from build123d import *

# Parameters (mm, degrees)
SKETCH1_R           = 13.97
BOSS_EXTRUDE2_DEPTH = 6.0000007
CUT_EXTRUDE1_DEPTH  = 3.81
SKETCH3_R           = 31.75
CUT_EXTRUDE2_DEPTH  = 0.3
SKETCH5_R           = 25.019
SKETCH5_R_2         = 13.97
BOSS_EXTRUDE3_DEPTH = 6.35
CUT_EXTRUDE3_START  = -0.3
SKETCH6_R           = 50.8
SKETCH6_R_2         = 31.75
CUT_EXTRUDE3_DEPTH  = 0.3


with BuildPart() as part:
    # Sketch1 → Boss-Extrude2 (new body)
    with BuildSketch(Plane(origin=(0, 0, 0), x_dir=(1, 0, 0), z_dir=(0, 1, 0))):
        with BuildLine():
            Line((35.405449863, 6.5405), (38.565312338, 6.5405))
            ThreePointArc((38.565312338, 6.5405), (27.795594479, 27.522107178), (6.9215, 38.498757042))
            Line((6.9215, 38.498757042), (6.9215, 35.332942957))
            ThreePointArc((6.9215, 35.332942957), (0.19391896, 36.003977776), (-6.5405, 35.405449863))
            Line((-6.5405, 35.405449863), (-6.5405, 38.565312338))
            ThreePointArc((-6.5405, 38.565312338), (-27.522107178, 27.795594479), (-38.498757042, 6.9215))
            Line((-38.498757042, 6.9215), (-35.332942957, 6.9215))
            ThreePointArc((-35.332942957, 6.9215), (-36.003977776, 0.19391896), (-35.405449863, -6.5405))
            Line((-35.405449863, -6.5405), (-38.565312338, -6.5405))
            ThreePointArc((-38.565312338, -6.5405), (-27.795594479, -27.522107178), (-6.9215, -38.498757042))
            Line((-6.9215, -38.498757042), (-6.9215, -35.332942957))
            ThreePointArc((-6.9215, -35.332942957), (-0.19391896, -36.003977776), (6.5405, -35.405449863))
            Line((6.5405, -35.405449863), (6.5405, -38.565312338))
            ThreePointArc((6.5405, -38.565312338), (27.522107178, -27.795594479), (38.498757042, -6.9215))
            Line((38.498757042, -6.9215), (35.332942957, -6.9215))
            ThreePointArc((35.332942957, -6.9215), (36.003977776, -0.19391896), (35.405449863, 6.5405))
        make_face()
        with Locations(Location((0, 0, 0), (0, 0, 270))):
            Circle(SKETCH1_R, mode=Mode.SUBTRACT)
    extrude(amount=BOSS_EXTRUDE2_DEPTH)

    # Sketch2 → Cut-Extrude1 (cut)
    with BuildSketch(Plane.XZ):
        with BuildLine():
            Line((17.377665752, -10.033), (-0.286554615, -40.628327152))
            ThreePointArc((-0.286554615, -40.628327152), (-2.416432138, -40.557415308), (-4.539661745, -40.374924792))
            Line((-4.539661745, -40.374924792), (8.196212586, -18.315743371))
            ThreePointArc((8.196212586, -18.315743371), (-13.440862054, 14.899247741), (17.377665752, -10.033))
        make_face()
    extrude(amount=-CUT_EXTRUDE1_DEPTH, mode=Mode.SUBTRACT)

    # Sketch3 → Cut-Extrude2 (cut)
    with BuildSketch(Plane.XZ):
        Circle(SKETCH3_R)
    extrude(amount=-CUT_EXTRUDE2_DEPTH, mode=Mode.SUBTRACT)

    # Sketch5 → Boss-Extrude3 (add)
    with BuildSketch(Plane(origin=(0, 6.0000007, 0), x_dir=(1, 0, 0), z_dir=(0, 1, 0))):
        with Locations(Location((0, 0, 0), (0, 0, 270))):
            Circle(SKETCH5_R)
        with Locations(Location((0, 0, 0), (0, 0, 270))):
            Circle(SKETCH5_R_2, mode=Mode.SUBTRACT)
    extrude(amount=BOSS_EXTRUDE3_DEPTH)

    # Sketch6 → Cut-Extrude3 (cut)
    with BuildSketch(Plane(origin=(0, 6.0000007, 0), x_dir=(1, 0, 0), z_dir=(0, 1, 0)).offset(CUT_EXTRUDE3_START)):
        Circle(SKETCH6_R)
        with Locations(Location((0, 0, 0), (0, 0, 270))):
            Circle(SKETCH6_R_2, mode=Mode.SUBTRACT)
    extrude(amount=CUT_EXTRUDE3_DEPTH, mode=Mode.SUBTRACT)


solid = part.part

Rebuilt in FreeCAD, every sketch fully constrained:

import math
import FreeCAD as App
import Part
import Sketcher
from FreeCAD import Vector
Q = App.Units.Quantity

doc = App.newDocument("Part")
body = doc.addObject("PartDesign::Body", "Body")

# Sketch on XZ plane
sketch1 = body.newObject("Sketcher::SketchObject", "Sketch")
sketch1.AttachmentSupport = (doc.getObject("XZ_Plane"), [""])
sketch1.MapMode = "FlatFace"
sketch1.addGeometry([
    Part.LineSegment(Vector(35.40545, -6.5405, 0), Vector(38.565312, -6.5405, 0)),  # 0
    Part.ArcOfCircle(Part.Circle(Vector(0, 0, 0), Vector(0, 0, 1), 39.116), math.radians(-79.807957), math.radians(-9.625514)),  # 1
    Part.LineSegment(Vector(6.9215, -38.498757, 0), Vector(6.9215, -35.332943, 0)),  # 2
    Part.ArcOfCircle(Part.Circle(Vector(0, 0, 0), Vector(0, 0, 1), 36.0045), math.radians(-100.46634), math.radians(-78.916471)),  # 3
    Part.LineSegment(Vector(-6.5405, -35.40545, 0), Vector(-6.5405, -38.565312, 0)),  # 4
    Part.ArcOfCircle(Part.Circle(Vector(0, 0, 0), Vector(0, 0, 1), 39.116), math.radians(-169.807957), math.radians(-99.625514)),  # 5
    Part.LineSegment(Vector(-38.498757, -6.9215, 0), Vector(-35.332943, -6.9215, 0)),  # 6
    Part.ArcOfCircle(Part.Circle(Vector(0, 0, 0), Vector(0, 0, 1), 36.0045), math.radians(169.53366), math.radians(191.083529)),  # 7
    Part.LineSegment(Vector(-35.40545, 6.5405, 0), Vector(-38.565312, 6.5405, 0)),  # 8
    Part.ArcOfCircle(Part.Circle(Vector(0, 0, 0), Vector(0, 0, 1), 39.116), math.radians(100.192043), math.radians(170.374486)),  # 9
    Part.LineSegment(Vector(-6.9215, 38.498757, 0), Vector(-6.9215, 35.332943, 0)),  # 10
    Part.ArcOfCircle(Part.Circle(Vector(0, 0, 0), Vector(0, 0, 1), 36.0045), math.radians(79.53366), math.radians(101.083529)),  # 11
    Part.LineSegment(Vector(6.5405, 35.40545, 0), Vector(6.5405, 38.565312, 0)),  # 12
    Part.ArcOfCircle(Part.Circle(Vector(0, 0, 0), Vector(0, 0, 1), 39.116), math.radians(10.192043), math.radians(80.374486)),  # 13
    Part.LineSegment(Vector(38.498757, 6.9215, 0), Vector(35.332943, 6.9215, 0)),  # 14
    Part.ArcOfCircle(Part.Circle(Vector(0, 0, 0), Vector(0, 0, 1), 36.0045), math.radians(-10.46634), math.radians(11.083529)),  # 15
    Part.Circle(Vector(0, 0, 0), Vector(0, 0, 1), 13.97),  # 16
], False)
sketch1.addConstraint([
    Sketcher.Constraint("Coincident", 0, 2, 1, 2),
    Sketcher.Constraint("Coincident", 1, 1, 2, 1),
    Sketcher.Constraint("Coincident", 2, 2, 3, 2),
    Sketcher.Constraint("Coincident", 3, 1, 4, 1),
    Sketcher.Constraint("Coincident", 4, 2, 5, 2),
    Sketcher.Constraint("Coincident", 5, 1, 6, 1),
    Sketcher.Constraint("Coincident", 6, 2, 7, 2),
    Sketcher.Constraint("Coincident", 7, 1, 8, 1),
    Sketcher.Constraint("Coincident", 8, 2, 9, 2),
    Sketcher.Constraint("Coincident", 9, 1, 10, 1),
    Sketcher.Constraint("Coincident", 10, 2, 11, 2),
    Sketcher.Constraint("Coincident", 11, 1, 12, 1),
    Sketcher.Constraint("Coincident", 12, 2, 13, 2),
    Sketcher.Constraint("Coincident", 13, 1, 14, 1),
    Sketcher.Constraint("Coincident", 14, 2, 15, 2),
    Sketcher.Constraint("Coincident", 15, 1, 0, 1),
    Sketcher.Constraint("Horizontal", 0),
    Sketcher.Constraint("Vertical", 2),
    Sketcher.Constraint("Vertical", 4),
    Sketcher.Constraint("Horizontal", 6),
    Sketcher.Constraint("Horizontal", 8),
    Sketcher.Constraint("Vertical", 10),
    Sketcher.Constraint("Vertical", 12),
    Sketcher.Constraint("Horizontal", 14),
    Sketcher.Constraint("Coincident", 1, 3, -1, 1),
    Sketcher.Constraint("Coincident", 3, 3, -1, 1),
    Sketcher.Constraint("Coincident", 5, 3, -1, 1),
    Sketcher.Constraint("Coincident", 7, 3, -1, 1),
    Sketcher.Constraint("Coincident", 9, 3, -1, 1),
    Sketcher.Constraint("Coincident", 11, 3, -1, 1),
    Sketcher.Constraint("Coincident", 13, 3, -1, 1),
    Sketcher.Constraint("Coincident", 15, 3, -1, 1),
    Sketcher.Constraint("Coincident", 16, 3, -1, 1),
    Sketcher.Constraint("Equal", 1, 5),
    Sketcher.Constraint("Equal", 3, 7),
    Sketcher.Constraint("Equal", 5, 9),
    Sketcher.Constraint("Equal", 7, 11),
    Sketcher.Constraint("Equal", 9, 13),
    Sketcher.Constraint("Equal", 11, 15),
    Sketcher.Constraint("Equal", 0, 8),
    Sketcher.Constraint("Equal", 6, 14),
    Sketcher.Constraint("Equal", 14, 2),
    Sketcher.Constraint("Equal", 8, 4),
    Sketcher.Constraint("Equal", 2, 10),
    Sketcher.Constraint("Equal", 4, 12),
    Sketcher.Constraint("Diameter", 16, Q("1.1 in")),
    Sketcher.Constraint("Radius", 1, Q("1.54 in")),
    Sketcher.Constraint("Radius", 3, Q("1.4175 in")),
    Sketcher.Constraint("DistanceX", 3, 1, 2, 2, Q("0.53 in")),
    Sketcher.Constraint("DistanceY", 0, 2, -1, 1, Q("0.2575 in")),
])
pad1 = body.newObject("PartDesign::Pad", "Pad")
pad1.Profile = sketch1
pad1.Length = 6.000001
pad1.Reversed = True

# Sketch on XZ plane
sketch2 = body.newObject("Sketcher::SketchObject", "Sketch001")
sketch2.AttachmentSupport = (doc.getObject("XZ_Plane"), [""])
sketch2.MapMode = "FlatFace"
sketch2.addGeometry([
    Part.LineSegment(Vector(-0.3, -40.6, 0), Vector(17.4, -10, 0)),
    Part.ArcOfCircle(Part.Circle(Vector(0, 0, 0), Vector(0, 0, 1), 20.1), math.radians(-30), math.radians(294)),
    Part.LineSegment(Vector(8.2, -18.3, 0), Vector(-4.5, -40.4, 0)),
    Part.ArcOfCircle(Part.Circle(Vector(0, 0, 0), Vector(0, 0, 1), 40.6), math.radians(-96.42), math.radians(-90.4)),
], False)
sketch2.addConstraint([
    Sketcher.Constraint("Tangent", 0, 2, 1, 1),
    Sketcher.Constraint("Coincident", 1, 2, 2, 1),
    Sketcher.Constraint("Coincident", 2, 2, 3, 1),
    Sketcher.Constraint("Coincident", 3, 2, 0, 1),
    Sketcher.Constraint("Coincident", 1, 3, -1, 1),
    Sketcher.Constraint("Coincident", 3, 3, -1, 1),
    Sketcher.Constraint("Parallel", 0, 2),
    Sketcher.Constraint("Radius", 1, Q("0.79 in")),
    Sketcher.Constraint("Angle", 0, Q("60 deg")),
    Sketcher.Constraint("Radius", 3, Q("40.629337 mm")),
    Sketcher.Constraint("Distance", 2, Q("25.471749 mm")),
])
pocket1 = body.newObject("PartDesign::Pocket", "Pocket")
pocket1.Profile = sketch2
pocket1.Length = Q("0.15 in")

# Sketch on XZ plane
sketch3 = body.newObject("Sketcher::SketchObject", "Sketch002")
sketch3.AttachmentSupport = (doc.getObject("XZ_Plane"), [""])
sketch3.MapMode = "FlatFace"
sketch3.addGeometry(Part.Circle(Vector(0, 0, 0), Vector(0, 0, 1), 32), False)
sketch3.addConstraint([
    Sketcher.Constraint("Coincident", 0, 3, -1, 1),
    Sketcher.Constraint("Diameter", 0, Q("2.5 in")),
])
pocket2 = body.newObject("PartDesign::Pocket", "Pocket001")
pocket2.Profile = sketch3
pocket2.Length = 0.3

# Sketch on XZ plane
sketch4 = body.newObject("Sketcher::SketchObject", "Sketch003")
sketch4.AttachmentSupport = (doc.getObject("XZ_Plane"), [""])
sketch4.MapMode = "FlatFace"
sketch4.AttachmentOffset = App.Placement(Vector(0, 0, -6.000001), App.Rotation())
sketch4.addGeometry([
    Part.Circle(Vector(0, 0, 0), Vector(0, 0, 1), 25),
    Part.Circle(Vector(0, 0, 0), Vector(0, 0, 1), 14),
], False)
sketch4.addConstraint([
    Sketcher.Constraint("Coincident", 0, 3, -1, 1),
    Sketcher.Constraint("Coincident", 1, 3, -1, 1),
    Sketcher.Constraint("Diameter", 1, Q("1.1 in")),
    Sketcher.Constraint("Diameter", 0, Q("1.97 in")),
])
pad2 = body.newObject("PartDesign::Pad", "Pad001")
pad2.Profile = sketch4
pad2.Length = Q("0.25 in")
pad2.Reversed = True

# Sketch on XZ plane
sketch5 = body.newObject("Sketcher::SketchObject", "Sketch004")
sketch5.AttachmentSupport = (doc.getObject("XZ_Plane"), [""])
sketch5.MapMode = "FlatFace"
sketch5.AttachmentOffset = App.Placement(Vector(0, 0, -5.700001), App.Rotation())
sketch5.addGeometry([
    Part.Circle(Vector(0, 0, 0), Vector(0, 0, 1), 51),
    Part.Circle(Vector(0, 0, 0), Vector(0, 0, 1), 32),
], False)
sketch5.addConstraint([
    Sketcher.Constraint("Coincident", 0, 3, -1, 1),
    Sketcher.Constraint("Coincident", 1, 3, -1, 1),
    Sketcher.Constraint("Diameter", 0, Q("4 in")),
    Sketcher.Constraint("Diameter", 1, Q("2.5 in")),
])
pocket3 = body.newObject("PartDesign::Pocket", "Pocket002")
pocket3.Profile = sketch5
pocket3.Length = 0.3

doc.recompute()
